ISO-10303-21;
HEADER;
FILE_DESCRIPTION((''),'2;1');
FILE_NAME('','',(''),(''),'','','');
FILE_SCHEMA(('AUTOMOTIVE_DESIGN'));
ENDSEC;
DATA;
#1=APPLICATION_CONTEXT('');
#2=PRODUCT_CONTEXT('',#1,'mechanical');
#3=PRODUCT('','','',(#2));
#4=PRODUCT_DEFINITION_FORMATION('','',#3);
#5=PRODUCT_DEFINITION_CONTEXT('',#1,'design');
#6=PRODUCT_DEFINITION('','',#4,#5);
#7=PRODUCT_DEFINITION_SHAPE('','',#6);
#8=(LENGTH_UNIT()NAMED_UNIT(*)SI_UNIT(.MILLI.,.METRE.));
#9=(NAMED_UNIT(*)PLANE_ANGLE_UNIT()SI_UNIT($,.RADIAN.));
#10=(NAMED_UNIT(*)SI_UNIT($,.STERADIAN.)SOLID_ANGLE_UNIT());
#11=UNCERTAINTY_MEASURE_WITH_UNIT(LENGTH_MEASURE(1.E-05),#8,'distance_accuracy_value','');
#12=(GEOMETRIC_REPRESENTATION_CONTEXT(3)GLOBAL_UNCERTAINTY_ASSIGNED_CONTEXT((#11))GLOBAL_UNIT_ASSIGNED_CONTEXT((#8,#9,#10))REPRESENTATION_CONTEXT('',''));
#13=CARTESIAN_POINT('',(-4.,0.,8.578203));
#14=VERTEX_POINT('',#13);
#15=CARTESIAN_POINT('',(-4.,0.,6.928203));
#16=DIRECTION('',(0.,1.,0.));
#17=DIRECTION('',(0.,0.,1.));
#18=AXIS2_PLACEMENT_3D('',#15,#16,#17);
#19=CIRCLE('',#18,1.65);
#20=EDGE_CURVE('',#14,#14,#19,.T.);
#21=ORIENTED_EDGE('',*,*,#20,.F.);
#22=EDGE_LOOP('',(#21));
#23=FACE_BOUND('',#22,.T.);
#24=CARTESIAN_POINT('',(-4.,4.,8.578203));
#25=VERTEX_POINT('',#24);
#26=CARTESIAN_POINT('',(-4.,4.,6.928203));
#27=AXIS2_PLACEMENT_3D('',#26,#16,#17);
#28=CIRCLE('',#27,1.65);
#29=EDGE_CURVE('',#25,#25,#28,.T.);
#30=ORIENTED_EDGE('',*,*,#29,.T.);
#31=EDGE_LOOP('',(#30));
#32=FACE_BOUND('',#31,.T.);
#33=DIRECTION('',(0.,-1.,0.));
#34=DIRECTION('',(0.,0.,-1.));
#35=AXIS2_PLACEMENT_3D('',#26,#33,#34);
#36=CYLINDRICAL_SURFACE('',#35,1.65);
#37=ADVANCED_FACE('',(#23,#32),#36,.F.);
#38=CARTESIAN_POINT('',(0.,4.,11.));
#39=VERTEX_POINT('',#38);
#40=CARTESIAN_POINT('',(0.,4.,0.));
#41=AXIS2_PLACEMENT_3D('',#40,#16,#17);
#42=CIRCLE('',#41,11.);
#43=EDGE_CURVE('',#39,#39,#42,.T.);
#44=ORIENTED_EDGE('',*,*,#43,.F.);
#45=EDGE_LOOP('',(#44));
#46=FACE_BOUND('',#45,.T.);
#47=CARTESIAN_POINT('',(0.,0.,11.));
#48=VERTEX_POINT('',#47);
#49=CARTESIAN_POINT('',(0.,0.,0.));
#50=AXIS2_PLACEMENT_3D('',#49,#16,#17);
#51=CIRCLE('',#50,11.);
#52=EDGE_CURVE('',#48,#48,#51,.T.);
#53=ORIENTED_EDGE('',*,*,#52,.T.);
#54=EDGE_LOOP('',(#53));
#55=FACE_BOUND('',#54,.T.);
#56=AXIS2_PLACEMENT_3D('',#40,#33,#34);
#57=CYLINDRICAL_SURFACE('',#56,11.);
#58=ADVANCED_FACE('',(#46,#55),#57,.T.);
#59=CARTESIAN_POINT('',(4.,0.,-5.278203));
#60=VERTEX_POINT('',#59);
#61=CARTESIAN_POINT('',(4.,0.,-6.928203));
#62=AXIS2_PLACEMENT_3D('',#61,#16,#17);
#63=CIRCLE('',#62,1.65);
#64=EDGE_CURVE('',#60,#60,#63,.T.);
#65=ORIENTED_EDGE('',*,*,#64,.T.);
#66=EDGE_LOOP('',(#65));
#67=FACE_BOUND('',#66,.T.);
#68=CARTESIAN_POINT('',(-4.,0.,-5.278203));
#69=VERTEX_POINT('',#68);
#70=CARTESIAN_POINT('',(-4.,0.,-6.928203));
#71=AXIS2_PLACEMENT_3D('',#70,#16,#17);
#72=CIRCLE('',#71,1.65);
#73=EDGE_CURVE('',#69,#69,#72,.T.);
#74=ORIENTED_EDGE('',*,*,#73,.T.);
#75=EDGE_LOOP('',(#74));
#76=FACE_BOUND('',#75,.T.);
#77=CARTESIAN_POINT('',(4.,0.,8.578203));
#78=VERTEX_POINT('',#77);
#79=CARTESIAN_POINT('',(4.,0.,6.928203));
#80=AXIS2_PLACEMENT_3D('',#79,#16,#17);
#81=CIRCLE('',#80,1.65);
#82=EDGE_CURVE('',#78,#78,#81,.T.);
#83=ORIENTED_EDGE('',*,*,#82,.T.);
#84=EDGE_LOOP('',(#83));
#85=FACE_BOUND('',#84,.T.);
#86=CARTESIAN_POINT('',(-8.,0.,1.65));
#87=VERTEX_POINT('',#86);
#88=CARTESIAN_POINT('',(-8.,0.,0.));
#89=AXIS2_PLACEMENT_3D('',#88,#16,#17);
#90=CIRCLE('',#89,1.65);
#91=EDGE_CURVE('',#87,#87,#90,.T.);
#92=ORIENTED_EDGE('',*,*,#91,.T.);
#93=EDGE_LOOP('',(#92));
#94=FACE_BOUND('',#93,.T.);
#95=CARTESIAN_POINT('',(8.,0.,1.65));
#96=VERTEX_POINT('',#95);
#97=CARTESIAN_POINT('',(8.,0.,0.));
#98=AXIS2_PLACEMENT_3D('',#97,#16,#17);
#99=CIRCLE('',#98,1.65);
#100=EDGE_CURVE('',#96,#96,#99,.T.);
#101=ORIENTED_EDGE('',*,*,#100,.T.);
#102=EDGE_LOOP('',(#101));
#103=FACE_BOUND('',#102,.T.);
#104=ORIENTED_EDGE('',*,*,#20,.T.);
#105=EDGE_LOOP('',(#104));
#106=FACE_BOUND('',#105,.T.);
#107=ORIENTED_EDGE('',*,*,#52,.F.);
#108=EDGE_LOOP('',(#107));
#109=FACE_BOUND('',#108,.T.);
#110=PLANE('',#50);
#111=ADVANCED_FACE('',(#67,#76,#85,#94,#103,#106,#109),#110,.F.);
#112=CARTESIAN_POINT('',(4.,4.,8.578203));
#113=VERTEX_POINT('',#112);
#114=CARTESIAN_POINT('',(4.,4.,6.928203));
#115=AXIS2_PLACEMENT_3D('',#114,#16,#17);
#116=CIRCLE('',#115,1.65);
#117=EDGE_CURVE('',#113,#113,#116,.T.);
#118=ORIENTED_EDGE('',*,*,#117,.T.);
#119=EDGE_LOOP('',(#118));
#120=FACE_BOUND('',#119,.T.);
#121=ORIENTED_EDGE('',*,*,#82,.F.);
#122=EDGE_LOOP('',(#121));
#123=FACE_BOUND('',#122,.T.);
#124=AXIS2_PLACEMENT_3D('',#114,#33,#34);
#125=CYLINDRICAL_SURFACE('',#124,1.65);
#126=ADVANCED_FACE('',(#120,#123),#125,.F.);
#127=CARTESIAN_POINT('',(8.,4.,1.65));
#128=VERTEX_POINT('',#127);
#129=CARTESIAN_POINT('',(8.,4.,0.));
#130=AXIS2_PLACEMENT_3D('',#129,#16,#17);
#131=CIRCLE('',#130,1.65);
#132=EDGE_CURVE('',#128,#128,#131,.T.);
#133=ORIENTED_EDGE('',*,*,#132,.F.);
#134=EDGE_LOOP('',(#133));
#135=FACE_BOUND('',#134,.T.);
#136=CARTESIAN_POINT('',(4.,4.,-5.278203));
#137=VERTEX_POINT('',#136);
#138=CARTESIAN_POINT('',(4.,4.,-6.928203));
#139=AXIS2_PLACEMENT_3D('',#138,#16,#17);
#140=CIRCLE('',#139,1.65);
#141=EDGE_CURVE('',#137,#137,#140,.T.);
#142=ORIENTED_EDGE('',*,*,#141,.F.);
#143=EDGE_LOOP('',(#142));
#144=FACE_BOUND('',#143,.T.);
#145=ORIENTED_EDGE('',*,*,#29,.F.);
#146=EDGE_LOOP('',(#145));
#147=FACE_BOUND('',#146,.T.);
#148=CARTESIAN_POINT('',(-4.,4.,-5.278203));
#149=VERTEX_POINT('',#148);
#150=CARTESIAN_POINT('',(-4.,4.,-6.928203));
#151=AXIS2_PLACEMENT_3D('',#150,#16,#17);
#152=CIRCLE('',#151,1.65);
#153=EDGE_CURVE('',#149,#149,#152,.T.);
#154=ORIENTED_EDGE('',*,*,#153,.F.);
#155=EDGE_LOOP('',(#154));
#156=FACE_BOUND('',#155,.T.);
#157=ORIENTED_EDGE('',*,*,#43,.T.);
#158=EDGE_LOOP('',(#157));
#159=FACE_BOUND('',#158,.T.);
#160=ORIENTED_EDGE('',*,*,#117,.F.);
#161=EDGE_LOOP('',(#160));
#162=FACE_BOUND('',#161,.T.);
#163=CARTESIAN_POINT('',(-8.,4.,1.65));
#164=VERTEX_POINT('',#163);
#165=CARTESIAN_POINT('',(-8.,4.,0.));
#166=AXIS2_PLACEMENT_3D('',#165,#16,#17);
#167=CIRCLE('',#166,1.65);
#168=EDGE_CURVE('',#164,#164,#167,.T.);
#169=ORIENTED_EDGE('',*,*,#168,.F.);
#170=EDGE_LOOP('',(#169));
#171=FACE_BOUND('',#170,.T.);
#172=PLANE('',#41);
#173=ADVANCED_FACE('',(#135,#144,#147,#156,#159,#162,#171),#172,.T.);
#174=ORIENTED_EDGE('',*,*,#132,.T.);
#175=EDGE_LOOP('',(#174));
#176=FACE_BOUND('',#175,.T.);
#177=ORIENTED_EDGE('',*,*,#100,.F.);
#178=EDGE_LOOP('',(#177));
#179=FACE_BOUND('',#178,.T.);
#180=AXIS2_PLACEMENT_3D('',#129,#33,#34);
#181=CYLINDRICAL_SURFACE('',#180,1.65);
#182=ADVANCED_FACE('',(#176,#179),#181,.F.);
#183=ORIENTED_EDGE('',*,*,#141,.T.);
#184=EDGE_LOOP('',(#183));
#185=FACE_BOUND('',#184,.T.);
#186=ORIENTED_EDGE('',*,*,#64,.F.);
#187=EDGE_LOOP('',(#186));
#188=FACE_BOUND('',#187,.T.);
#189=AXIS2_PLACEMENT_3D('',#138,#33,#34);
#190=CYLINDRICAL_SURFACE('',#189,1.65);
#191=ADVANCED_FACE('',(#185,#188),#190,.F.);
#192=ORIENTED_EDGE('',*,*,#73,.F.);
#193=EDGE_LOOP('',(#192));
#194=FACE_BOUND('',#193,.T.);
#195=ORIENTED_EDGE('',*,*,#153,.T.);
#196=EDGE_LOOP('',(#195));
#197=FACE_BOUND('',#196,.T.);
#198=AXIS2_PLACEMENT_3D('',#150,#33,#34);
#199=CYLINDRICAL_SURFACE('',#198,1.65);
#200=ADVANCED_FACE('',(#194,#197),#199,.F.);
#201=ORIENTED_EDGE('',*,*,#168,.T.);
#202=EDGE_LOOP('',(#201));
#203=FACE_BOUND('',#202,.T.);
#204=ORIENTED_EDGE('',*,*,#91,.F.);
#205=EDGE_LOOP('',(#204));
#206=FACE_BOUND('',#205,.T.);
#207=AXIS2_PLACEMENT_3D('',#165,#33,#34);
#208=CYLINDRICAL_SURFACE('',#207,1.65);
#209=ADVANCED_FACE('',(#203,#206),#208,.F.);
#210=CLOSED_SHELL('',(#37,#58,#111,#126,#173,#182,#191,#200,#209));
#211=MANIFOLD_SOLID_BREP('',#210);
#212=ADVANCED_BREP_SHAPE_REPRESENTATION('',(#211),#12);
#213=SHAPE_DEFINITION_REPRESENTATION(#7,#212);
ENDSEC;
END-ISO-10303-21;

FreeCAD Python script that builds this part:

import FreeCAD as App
import Part
import Sketcher

V = App.Vector
Q = App.Units.Quantity

doc = App.newDocument("Part")
body = doc.addObject("PartDesign::Body", "Body")

# Sketch on XZ plane
sketch1 = doc.addObject("Sketcher::SketchObject", "Sketch")
body.addObject(sketch1)
sketch1.AttachmentSupport = (doc.XZ_Plane, [""])
sketch1.MapMode = "FlatFace"
sketch1.addGeometry(Part.Circle(V(0, 0, 0), V(0, 0, 1), 11), False)
sketch1.addGeometry(Part.Circle(V(-4, -6.928203, 0), V(0, 0, 1), 1.65), False)
sketch1.addGeometry(Part.Circle(V(-8, 0, 0), V(0, 0, 1), 1.65), False)
sketch1.addGeometry(Part.Circle(V(-4, 6.928203, 0), V(0, 0, 1), 1.65), False)
sketch1.addGeometry(Part.Circle(V(4, -6.928203, 0), V(0, 0, 1), 1.65), False)
sketch1.addGeometry(Part.Circle(V(8, 0, 0), V(0, 0, 1), 1.65), False)
sketch1.addGeometry(Part.Circle(V(4, 6.928203, 0), V(0, 0, 1), 1.65), False)
sketch1.addConstraint(Sketcher.Constraint("Coincident", 0, 3, -1, 1))
sketch1.addConstraint(Sketcher.Constraint("Equal", 1, 2))
sketch1.addConstraint(Sketcher.Constraint("Equal", 2, 3))
sketch1.addConstraint(Sketcher.Constraint("Equal", 3, 4))
sketch1.addConstraint(Sketcher.Constraint("Equal", 4, 5))
sketch1.addConstraint(Sketcher.Constraint("Equal", 5, 6))
sketch1.addConstraint(Sketcher.Constraint("Symmetric", 3, 3, 4, 3, -1, 1))
sketch1.addConstraint(Sketcher.Constraint("Symmetric", 2, 3, 5, 3, -1, 1))
sketch1.addConstraint(Sketcher.Constraint("Symmetric", 1, 3, 6, 3, -1, 1))
sketch1.addConstraint(Sketcher.Constraint("Symmetric", 1, 3, 4, 3, -2))
sketch1.addConstraint(Sketcher.Constraint("PointOnObject", 2, 3, -1))
sketch1.addConstraint(Sketcher.Constraint("Diameter", 0, Q("22 mm")))
sketch1.addConstraint(Sketcher.Constraint("Diameter", 1, Q("3.3 mm")))
sketch1.addConstraint(Sketcher.Constraint("DistanceX", 1, 3, -1, 1, Q("4 mm")))
sketch1.addConstraint(Sketcher.Constraint("DistanceX", 2, 3, -1, 1, Q("8 mm")))
sketch1.addConstraint(Sketcher.Constraint("DistanceY", 1, 3, -1, 1, Q("6.928203 mm")))
pad1 = doc.addObject("PartDesign::Pad", "Pad")
body.addObject(pad1)
pad1.Profile = sketch1
pad1.Length = 4
pad1.Reversed = True

doc.recompute()
